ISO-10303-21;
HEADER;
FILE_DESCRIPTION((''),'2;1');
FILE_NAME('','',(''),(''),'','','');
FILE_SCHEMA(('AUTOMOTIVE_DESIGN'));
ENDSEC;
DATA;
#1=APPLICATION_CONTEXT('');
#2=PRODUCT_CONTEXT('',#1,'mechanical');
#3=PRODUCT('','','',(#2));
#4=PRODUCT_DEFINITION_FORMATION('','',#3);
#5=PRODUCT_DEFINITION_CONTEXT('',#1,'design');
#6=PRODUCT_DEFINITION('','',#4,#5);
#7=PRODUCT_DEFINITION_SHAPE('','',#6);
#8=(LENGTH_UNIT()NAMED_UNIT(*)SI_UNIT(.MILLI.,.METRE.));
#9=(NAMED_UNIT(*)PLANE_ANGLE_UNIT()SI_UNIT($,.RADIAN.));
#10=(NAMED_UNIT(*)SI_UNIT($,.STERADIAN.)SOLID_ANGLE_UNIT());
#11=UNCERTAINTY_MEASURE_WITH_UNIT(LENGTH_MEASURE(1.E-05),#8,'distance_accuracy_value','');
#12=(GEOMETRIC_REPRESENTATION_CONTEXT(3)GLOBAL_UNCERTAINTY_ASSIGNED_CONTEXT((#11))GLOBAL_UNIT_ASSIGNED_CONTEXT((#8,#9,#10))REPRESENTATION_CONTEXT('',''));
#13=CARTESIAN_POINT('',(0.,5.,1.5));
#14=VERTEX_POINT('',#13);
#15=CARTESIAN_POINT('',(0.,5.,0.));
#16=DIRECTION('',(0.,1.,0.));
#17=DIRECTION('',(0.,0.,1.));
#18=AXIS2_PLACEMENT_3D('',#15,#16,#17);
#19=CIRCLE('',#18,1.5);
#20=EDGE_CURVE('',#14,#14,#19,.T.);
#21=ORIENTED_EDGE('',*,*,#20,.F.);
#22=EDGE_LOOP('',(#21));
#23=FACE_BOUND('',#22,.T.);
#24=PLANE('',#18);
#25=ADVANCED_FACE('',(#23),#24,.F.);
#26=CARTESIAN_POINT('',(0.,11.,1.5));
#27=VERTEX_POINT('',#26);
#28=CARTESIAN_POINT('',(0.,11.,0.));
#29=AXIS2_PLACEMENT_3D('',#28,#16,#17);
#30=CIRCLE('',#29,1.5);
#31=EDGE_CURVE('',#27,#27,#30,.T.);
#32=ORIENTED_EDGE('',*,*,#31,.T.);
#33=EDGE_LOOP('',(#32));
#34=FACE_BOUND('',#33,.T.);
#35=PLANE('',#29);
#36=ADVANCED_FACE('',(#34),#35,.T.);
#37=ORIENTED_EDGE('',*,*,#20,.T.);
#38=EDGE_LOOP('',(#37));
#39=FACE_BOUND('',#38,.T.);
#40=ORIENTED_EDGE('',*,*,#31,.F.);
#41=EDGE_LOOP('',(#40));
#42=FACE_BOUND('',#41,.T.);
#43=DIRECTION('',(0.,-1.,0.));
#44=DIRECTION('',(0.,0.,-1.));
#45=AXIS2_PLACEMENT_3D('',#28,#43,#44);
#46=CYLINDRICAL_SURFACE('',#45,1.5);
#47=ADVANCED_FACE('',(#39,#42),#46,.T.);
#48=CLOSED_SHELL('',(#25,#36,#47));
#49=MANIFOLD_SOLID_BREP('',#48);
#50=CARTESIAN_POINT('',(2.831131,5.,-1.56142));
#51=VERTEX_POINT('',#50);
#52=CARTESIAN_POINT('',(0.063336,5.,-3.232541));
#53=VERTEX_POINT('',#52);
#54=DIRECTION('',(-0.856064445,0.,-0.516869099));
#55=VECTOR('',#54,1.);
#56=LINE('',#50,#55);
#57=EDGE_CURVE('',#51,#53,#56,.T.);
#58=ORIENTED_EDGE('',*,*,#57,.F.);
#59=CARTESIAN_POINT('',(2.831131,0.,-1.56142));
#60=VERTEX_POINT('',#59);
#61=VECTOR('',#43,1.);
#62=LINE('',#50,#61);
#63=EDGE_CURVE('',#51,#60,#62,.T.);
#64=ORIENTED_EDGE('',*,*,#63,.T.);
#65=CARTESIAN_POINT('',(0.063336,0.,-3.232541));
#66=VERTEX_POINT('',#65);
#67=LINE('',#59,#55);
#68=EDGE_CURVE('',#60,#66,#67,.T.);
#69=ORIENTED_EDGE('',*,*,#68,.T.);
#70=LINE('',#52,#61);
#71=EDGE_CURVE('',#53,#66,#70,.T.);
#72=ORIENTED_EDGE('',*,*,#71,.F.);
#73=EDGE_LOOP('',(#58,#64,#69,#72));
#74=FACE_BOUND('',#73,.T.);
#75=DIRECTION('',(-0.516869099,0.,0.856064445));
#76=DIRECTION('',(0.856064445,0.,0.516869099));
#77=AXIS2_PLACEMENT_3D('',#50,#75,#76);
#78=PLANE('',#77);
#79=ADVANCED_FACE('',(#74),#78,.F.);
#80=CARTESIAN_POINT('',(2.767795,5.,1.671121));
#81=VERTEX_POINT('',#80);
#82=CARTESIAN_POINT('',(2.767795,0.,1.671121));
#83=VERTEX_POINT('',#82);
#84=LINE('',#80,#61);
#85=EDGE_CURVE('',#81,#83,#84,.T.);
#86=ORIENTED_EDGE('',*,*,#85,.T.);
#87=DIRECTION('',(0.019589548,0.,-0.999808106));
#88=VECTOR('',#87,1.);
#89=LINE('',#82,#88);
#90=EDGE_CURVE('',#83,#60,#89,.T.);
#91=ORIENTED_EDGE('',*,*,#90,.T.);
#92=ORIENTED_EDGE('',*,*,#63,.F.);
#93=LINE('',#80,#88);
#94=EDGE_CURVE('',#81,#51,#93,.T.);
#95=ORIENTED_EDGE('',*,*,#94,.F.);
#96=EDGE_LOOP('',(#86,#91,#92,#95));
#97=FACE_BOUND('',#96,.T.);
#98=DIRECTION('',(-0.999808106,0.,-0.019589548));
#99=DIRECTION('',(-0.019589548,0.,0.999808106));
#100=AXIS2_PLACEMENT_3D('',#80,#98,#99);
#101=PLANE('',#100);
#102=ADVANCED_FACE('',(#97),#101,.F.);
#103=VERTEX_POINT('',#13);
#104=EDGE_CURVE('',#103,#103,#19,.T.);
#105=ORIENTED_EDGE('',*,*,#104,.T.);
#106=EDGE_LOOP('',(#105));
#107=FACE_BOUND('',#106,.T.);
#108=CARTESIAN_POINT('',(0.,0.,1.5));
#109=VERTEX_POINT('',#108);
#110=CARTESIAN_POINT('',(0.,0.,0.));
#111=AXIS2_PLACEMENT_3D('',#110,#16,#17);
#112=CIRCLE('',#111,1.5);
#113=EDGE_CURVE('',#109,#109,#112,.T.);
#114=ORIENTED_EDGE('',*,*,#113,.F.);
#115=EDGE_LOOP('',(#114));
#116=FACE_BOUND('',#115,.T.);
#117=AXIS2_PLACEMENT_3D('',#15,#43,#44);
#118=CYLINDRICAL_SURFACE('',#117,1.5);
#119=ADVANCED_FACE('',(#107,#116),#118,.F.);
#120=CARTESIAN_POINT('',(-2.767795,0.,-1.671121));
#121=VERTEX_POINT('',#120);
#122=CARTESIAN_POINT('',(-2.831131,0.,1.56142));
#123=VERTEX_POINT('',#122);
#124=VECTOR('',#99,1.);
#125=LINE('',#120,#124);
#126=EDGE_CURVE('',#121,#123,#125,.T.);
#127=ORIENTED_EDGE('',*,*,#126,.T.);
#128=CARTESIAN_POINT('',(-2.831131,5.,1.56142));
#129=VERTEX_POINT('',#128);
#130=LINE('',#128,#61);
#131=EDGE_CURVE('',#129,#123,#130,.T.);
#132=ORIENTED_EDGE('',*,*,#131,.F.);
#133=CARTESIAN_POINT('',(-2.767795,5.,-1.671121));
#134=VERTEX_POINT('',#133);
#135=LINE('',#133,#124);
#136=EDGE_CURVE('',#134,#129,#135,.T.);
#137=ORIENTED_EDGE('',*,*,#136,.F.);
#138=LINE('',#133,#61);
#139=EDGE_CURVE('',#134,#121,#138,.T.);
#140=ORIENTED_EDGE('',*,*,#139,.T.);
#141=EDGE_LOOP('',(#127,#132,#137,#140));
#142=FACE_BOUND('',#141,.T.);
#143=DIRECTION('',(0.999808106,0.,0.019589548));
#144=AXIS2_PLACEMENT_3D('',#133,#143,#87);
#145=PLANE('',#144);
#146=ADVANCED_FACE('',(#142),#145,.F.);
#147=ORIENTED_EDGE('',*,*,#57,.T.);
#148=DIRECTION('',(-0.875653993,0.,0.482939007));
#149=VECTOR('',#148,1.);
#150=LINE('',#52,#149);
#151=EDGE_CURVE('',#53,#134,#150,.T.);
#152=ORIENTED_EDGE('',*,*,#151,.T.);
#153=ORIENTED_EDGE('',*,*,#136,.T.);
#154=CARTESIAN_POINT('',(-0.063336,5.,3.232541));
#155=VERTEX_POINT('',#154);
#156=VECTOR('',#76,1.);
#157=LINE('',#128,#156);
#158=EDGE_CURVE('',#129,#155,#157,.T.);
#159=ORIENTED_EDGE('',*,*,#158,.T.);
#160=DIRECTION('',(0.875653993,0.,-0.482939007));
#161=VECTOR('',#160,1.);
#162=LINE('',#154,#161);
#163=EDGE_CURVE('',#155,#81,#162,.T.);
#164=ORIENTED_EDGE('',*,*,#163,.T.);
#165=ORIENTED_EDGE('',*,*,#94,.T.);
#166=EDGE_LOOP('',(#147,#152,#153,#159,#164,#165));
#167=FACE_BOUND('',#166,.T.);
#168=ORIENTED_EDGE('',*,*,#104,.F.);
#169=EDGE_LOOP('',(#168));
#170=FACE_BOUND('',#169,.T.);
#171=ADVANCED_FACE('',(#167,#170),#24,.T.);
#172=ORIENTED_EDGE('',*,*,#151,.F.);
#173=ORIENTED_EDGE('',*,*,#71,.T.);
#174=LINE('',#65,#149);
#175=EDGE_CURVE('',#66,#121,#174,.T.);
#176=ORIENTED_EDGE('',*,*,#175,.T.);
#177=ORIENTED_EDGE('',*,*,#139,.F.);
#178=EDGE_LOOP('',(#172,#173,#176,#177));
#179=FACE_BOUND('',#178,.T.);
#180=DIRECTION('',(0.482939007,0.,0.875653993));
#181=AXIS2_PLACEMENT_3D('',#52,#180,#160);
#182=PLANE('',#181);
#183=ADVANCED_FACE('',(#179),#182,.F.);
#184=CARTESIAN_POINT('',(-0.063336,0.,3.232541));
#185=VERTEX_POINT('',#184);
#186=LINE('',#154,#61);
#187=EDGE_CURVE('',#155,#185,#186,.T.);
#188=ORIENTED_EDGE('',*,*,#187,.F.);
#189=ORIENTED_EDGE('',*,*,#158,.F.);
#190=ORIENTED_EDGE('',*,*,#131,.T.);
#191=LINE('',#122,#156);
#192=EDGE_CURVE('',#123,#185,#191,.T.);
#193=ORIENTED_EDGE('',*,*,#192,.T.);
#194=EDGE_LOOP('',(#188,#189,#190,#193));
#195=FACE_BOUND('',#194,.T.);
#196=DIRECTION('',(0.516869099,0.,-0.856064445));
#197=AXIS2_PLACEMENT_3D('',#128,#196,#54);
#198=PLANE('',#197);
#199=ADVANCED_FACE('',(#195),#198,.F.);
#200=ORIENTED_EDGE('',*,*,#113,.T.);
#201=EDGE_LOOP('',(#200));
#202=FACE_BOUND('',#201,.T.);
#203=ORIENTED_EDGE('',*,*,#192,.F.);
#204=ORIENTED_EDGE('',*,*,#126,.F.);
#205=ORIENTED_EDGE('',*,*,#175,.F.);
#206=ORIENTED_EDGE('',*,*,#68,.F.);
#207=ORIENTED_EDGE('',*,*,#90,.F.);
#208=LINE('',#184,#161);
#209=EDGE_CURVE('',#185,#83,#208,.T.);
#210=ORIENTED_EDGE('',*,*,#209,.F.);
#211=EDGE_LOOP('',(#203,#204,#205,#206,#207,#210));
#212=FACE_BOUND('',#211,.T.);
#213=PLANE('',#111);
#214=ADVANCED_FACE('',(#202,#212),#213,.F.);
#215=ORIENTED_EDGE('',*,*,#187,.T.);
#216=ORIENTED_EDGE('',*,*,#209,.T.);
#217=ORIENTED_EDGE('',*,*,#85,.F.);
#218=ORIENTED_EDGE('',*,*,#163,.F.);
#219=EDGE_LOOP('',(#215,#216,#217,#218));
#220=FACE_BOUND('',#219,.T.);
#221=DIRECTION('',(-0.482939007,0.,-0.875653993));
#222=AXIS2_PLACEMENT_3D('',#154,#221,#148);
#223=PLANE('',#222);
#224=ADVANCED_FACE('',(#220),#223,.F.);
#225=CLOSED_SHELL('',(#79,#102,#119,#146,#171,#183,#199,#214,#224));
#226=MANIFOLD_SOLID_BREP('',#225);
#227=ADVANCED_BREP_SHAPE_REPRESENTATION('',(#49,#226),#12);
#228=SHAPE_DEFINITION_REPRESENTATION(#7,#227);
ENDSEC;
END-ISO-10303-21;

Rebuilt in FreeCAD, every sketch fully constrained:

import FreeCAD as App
import Part
import Sketcher

V = App.Vector
Q = App.Units.Quantity


def add_polygon(sketch, points):
    """Adds a closed chain of lines whose ends are joined by coincident constraints."""
    first, n = sketch.GeometryCount, len(points)
    for a, b in zip(points, points[1:] + points[:1]):
        sketch.addGeometry(Part.LineSegment(App.Vector(*a, 0), App.Vector(*b, 0)), False)
    for i in range(n):
        sketch.addConstraint(Sketcher.Constraint("Coincident", first + i, 2, first + (i + 1) % n, 1))

doc = App.newDocument("Part")
body = doc.addObject("PartDesign::Body", "Body")

# Sketch on XZ plane
sketch1 = body.newObject("Sketcher::SketchObject", "Sketch")
sketch1.AttachmentSupport = (doc.getObject("XZ_Plane"), [""])
sketch1.MapMode = "FlatFace"
add_polygon(sketch1, [(2.767795, 1.671121), (2.831131, -1.56142), (0.063336, -3.232541), (-2.767795, -1.671121), (-2.831131, 1.56142), (-0.063336, 3.232541)])  # lines 0-5
sketch1.addGeometry(Part.Circle(V(0, 0, 0), V(0, 0, 1), 1.5), False)  # 6
sketch1.addConstraint(Sketcher.Constraint("Coincident", 6, 3, -1, 1))
sketch1.addConstraint(Sketcher.Constraint("Diameter", 6, Q("3 mm")))
sketch1.addConstraint(Sketcher.Constraint("DistanceY", 2, 2, 0, 2, Q("0.109701 mm")))
sketch1.addConstraint(Sketcher.Constraint("DistanceY", 3, 2, 5, 2, Q("0.109701 mm")))
sketch1.addConstraint(Sketcher.Constraint("Distance", 0, Q("3.233162 mm")))
sketch1.addConstraint(Sketcher.Constraint("Distance", 1, Q("3.233162 mm")))
sketch1.addConstraint(Sketcher.Constraint("Distance", 2, Q("3.233162 mm")))
sketch1.addConstraint(Sketcher.Constraint("Distance", 3, Q("3.233162 mm")))
sketch1.addConstraint(Sketcher.Constraint("Distance", 4, Q("3.233162 mm")))
sketch1.addConstraint(Sketcher.Constraint("Distance", 5, Q("3.233162 mm")))
sketch1.addConstraint(Sketcher.Constraint("DistanceX", -1, 1, 0, 2, Q("2.831131 mm")))
sketch1.addConstraint(Sketcher.Constraint("DistanceY", 0, 2, -1, 1, Q("1.56142 mm")))
sketch1.addConstraint(Sketcher.Constraint("DistanceY", 1, 2, -1, 1, Q("3.232541 mm")))
sketch1.addConstraint(Sketcher.Constraint("DistanceX", 3, 2, -1, 1, Q("2.831131 mm")))
pad1 = body.newObject("PartDesign::Pad", "Pad")
pad1.Profile = sketch1
pad1.Length = 5
pad1.Reversed = True
body2 = doc.addObject("PartDesign::Body", "Body001")

# Sketch on XZ plane
sketch2 = body2.newObject("Sketcher::SketchObject", "Sketch001")
sketch2.AttachmentSupport = (doc.getObject("XZ_Plane001"), [""])
sketch2.MapMode = "FlatFace"
sketch2.AttachmentOffset = App.Placement(V(0, 0, -5), App.Rotation())
sketch2.addGeometry(Part.Circle(V(0, 0, 0), V(0, 0, 1), 1.5), False)
sketch2.addConstraint(Sketcher.Constraint("Coincident", 0, 3, -1, 1))
sketch2.addConstraint(Sketcher.Constraint("Diameter", 0, Q("3 mm")))
pad2 = body2.newObject("PartDesign::Pad", "Pad001")
pad2.Profile = sketch2
pad2.Length = 6
pad2.Reversed = True

doc.recompute()
